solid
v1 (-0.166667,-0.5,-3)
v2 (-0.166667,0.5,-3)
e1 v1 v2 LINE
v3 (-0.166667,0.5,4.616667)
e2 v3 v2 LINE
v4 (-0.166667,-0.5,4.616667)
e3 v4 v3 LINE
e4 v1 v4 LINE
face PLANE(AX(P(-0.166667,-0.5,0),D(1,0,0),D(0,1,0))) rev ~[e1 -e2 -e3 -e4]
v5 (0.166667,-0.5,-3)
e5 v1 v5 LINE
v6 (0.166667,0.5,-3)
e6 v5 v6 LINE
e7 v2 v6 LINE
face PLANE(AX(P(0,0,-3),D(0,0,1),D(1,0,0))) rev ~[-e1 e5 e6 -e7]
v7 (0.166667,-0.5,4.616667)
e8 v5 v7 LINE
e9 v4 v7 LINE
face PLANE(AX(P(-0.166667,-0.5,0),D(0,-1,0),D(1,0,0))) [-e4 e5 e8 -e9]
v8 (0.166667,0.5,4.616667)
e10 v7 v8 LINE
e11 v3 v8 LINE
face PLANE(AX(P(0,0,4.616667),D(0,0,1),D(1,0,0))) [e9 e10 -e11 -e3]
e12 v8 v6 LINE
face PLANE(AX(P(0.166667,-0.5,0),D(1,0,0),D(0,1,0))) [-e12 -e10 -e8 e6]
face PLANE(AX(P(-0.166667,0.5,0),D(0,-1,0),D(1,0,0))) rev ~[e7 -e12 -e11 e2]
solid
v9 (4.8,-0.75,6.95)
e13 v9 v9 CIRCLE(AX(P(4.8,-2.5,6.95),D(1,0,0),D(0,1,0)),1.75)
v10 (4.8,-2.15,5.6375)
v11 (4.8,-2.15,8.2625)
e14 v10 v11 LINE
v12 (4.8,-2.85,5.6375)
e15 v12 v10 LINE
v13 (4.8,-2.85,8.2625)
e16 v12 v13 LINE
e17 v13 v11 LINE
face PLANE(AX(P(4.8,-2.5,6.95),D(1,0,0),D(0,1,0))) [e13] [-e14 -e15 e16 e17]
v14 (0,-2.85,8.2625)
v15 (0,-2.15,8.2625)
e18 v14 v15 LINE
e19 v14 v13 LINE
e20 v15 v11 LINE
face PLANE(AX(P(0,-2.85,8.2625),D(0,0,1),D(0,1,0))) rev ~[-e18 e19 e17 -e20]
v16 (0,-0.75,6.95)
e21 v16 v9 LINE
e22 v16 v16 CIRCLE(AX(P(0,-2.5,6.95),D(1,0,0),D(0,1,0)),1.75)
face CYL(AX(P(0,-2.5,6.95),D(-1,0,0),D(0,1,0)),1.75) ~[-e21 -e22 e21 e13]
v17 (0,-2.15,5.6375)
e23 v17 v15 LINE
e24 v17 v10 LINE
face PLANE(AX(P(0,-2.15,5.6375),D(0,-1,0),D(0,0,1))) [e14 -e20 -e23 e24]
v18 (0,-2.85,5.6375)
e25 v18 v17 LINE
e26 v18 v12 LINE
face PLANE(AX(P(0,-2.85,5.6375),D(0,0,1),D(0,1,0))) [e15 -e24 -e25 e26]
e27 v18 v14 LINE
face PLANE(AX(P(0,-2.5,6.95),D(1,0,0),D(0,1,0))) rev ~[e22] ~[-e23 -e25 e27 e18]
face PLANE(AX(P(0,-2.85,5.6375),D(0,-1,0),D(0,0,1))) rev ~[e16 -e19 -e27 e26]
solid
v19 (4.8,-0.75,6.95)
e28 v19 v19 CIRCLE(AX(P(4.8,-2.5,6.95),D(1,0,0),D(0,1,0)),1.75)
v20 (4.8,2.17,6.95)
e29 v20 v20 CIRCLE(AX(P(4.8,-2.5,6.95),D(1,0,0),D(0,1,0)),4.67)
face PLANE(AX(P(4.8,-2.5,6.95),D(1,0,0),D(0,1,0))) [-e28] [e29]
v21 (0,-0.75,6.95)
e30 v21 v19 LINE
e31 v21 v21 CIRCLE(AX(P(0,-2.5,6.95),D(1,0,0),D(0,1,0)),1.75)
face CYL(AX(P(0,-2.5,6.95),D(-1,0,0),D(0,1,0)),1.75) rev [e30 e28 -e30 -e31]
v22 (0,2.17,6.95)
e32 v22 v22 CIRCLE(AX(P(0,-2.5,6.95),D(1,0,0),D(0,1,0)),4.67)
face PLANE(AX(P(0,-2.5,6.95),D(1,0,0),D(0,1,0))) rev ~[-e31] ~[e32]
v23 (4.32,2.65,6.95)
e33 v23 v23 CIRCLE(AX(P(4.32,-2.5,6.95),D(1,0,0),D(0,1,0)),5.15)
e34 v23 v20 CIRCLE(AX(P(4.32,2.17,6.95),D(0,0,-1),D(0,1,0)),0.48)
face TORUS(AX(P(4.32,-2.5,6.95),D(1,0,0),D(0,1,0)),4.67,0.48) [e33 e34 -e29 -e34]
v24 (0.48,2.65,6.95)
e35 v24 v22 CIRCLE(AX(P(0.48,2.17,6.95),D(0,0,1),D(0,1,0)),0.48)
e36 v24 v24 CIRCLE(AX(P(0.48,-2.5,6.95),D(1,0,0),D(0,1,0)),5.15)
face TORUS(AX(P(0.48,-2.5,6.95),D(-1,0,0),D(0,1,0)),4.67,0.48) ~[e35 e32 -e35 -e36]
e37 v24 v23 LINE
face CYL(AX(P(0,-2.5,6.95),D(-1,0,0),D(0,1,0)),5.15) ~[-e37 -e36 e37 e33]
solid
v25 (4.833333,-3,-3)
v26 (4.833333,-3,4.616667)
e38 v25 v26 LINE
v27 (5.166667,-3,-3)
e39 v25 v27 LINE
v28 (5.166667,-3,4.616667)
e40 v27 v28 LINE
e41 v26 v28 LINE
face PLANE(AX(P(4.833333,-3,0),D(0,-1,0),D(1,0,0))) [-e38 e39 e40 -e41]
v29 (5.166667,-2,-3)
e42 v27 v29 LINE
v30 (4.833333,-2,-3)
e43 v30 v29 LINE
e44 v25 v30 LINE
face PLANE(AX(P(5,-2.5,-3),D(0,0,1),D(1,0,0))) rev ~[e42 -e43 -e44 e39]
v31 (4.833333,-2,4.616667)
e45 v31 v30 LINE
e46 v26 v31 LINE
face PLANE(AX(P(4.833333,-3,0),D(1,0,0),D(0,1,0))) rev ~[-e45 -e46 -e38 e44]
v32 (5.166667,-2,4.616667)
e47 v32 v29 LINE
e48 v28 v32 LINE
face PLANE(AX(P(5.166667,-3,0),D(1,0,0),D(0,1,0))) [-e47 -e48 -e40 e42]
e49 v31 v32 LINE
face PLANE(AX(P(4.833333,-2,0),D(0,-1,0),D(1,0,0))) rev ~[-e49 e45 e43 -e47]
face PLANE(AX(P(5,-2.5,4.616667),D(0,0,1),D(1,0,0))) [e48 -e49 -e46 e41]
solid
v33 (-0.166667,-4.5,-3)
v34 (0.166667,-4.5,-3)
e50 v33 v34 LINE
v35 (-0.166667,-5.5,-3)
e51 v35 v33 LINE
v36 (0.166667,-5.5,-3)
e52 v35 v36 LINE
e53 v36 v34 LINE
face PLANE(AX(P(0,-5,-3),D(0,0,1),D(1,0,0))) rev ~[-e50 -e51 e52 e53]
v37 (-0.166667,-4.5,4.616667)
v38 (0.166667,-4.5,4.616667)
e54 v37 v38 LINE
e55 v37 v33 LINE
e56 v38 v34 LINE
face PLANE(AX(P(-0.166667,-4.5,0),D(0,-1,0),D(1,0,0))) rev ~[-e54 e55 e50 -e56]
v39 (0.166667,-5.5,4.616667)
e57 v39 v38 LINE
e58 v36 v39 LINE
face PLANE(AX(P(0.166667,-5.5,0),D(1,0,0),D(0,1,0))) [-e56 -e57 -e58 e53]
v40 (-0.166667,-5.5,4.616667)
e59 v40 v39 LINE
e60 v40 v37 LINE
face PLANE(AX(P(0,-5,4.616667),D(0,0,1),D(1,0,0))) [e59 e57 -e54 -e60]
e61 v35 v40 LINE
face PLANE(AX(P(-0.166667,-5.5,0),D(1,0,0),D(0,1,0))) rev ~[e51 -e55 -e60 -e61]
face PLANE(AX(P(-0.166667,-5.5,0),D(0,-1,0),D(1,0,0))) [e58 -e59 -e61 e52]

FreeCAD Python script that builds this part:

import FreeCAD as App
import Part
import Sketcher
Q = App.Units.Quantity


def edges_at(feature, points):
    """Names of the edges that pass closest to the given points."""
    edges = feature.Shape.Edges
    near = lambda p: min(range(len(edges)), key=lambda i: edges[i].distToShape(Part.Vertex(*p))[0])
    return sorted({f"Edge{near(p) + 1}" for p in points})

doc = App.newDocument("Part")
body = doc.addObject("PartDesign::Body", "Body")

# Sketch on YZ plane
sketch1 = body.newObject("Sketcher::SketchObject", "Sketch")
sketch1.AttachmentSupport = (doc.getObject("YZ_Plane"), [""])
sketch1.MapMode = "FlatFace"
sketch1.addGeometry([
    Part.Circle(App.Vector(-2.5, 6.95, 0), App.Vector(0, 0, 1), 1.75),  # 0
    Part.LineSegment(App.Vector(-2.15, 5.6375, 0), App.Vector(-2.85, 5.6375, 0)),  # 1
    Part.LineSegment(App.Vector(-2.85, 5.6375, 0), App.Vector(-2.85, 8.2625, 0)),  # 2
    Part.LineSegment(App.Vector(-2.85, 8.2625, 0), App.Vector(-2.15, 8.2625, 0)),  # 3
    Part.LineSegment(App.Vector(-2.15, 8.2625, 0), App.Vector(-2.15, 5.6375, 0)),  # 4
], False)
sketch1.addConstraint([
    Sketcher.Constraint("Coincident", 1, 2, 2, 1),
    Sketcher.Constraint("Coincident", 2, 2, 3, 1),
    Sketcher.Constraint("Coincident", 3, 2, 4, 1),
    Sketcher.Constraint("Coincident", 4, 2, 1, 1),
    Sketcher.Constraint("Horizontal", 1),
    Sketcher.Constraint("Vertical", 2),
    Sketcher.Constraint("Horizontal", 3),
    Sketcher.Constraint("Vertical", 4),
    Sketcher.Constraint("Diameter", 0, Q("3.5 mm")),
    Sketcher.Constraint("DistanceX", 1, 2, 1, 1, Q("0.7 mm")),
    Sketcher.Constraint("DistanceX", 0, 3, -1, 1, Q("2.5 mm")),
    Sketcher.Constraint("DistanceY", 2, 1, 2, 2, Q("2.625 mm")),
    Sketcher.Constraint("DistanceY", -1, 1, 0, 3, Q("6.95 mm")),
    Sketcher.Constraint("DistanceX", 1, 2, -1, 1, Q("2.85 mm")),
    Sketcher.Constraint("DistanceY", -1, 1, 1, 2, Q("5.6375 mm")),
])
pad1 = body.newObject("PartDesign::Pad", "Pad")
pad1.Profile = sketch1
pad1.Length = 4.8
body2 = doc.addObject("PartDesign::Body", "Body001")

# Sketch on YZ plane
sketch2 = body2.newObject("Sketcher::SketchObject", "Sketch001")
sketch2.AttachmentSupport = (doc.getObject("YZ_Plane001"), [""])
sketch2.MapMode = "FlatFace"
sketch2.addGeometry([
    Part.Circle(App.Vector(-2.5, 6.95, 0), App.Vector(0, 0, 1), 5.15),
    Part.Circle(App.Vector(-2.5, 6.95, 0), App.Vector(0, 0, 1), 1.75),
], False)
sketch2.addConstraint([
    Sketcher.Constraint("Coincident", 1, 3, 0, 3),
    Sketcher.Constraint("Diameter", 0, Q("10.3 mm")),
    Sketcher.Constraint("Diameter", 1, Q("3.5 mm")),
    Sketcher.Constraint("DistanceX", 0, 3, -1, 1, Q("2.5 mm")),
    Sketcher.Constraint("DistanceY", -1, 1, 0, 3, Q("6.95 mm")),
])
pad2 = body2.newObject("PartDesign::Pad", "Pad001")
pad2.Profile = sketch2
pad2.Length = 4.8
doc.recompute()

fillet = body2.newObject("PartDesign::Fillet", "Fillet")
fillet.Base = (pad2, edges_at(pad2, [(0, -7.65, 6.95), (4.8, -7.65, 6.95)]))
fillet.Radius = 0.48
body3 = doc.addObject("PartDesign::Body", "Body002")
body3.AllowCompound = True

# Sketch on XY plane
sketch3 = body3.newObject("Sketcher::SketchObject", "Sketch002")
sketch3.AttachmentSupport = (doc.getObject("XY_Plane002"), [""])
sketch3.MapMode = "FlatFace"
sketch3.addGeometry([
    Part.LineSegment(App.Vector(-0.166667, 0.5, 0), App.Vector(-0.166667, -0.5, 0)),  # 0
    Part.LineSegment(App.Vector(-0.166667, -0.5, 0), App.Vector(0.166667, -0.5, 0)),  # 1
    Part.LineSegment(App.Vector(0.166667, -0.5, 0), App.Vector(0.166667, 0.5, 0)),  # 2
    Part.LineSegment(App.Vector(0.166667, 0.5, 0), App.Vector(-0.166667, 0.5, 0)),  # 3
    Part.LineSegment(App.Vector(4.833333, -2, 0), App.Vector(4.833333, -3, 0)),  # 4
    Part.LineSegment(App.Vector(4.833333, -3, 0), App.Vector(5.166667, -3, 0)),  # 5
    Part.LineSegment(App.Vector(5.166667, -3, 0), App.Vector(5.166667, -2, 0)),  # 6
    Part.LineSegment(App.Vector(5.166667, -2, 0), App.Vector(4.833333, -2, 0)),  # 7
    Part.LineSegment(App.Vector(-0.166667, -4.5, 0), App.Vector(-0.166667, -5.5, 0)),  # 8
    Part.LineSegment(App.Vector(-0.166667, -5.5, 0), App.Vector(0.166667, -5.5, 0)),  # 9
    Part.LineSegment(App.Vector(0.166667, -5.5, 0), App.Vector(0.166667, -4.5, 0)),  # 10
    Part.LineSegment(App.Vector(0.166667, -4.5, 0), App.Vector(-0.166667, -4.5, 0)),  # 11
], False)
sketch3.addConstraint([
    Sketcher.Constraint("Coincident", 0, 2, 1, 1),
    Sketcher.Constraint("Coincident", 1, 2, 2, 1),
    Sketcher.Constraint("Coincident", 2, 2, 3, 1),
    Sketcher.Constraint("Coincident", 3, 2, 0, 1),
    Sketcher.Constraint("Coincident", 4, 2, 5, 1),
    Sketcher.Constraint("Coincident", 5, 2, 6, 1),
    Sketcher.Constraint("Coincident", 6, 2, 7, 1),
    Sketcher.Constraint("Coincident", 7, 2, 4, 1),
    Sketcher.Constraint("Coincident", 8, 2, 9, 1),
    Sketcher.Constraint("Coincident", 9, 2, 10, 1),
    Sketcher.Constraint("Coincident", 10, 2, 11, 1),
    Sketcher.Constraint("Coincident", 11, 2, 8, 1),
    Sketcher.Constraint("Vertical", 0),
    Sketcher.Constraint("Horizontal", 1),
    Sketcher.Constraint("Vertical", 2),
    Sketcher.Constraint("Horizontal", 3),
    Sketcher.Constraint("Vertical", 4),
    Sketcher.Constraint("Horizontal", 5),
    Sketcher.Constraint("Vertical", 6),
    Sketcher.Constraint("Horizontal", 7),
    Sketcher.Constraint("Vertical", 8),
    Sketcher.Constraint("Horizontal", 9),
    Sketcher.Constraint("Vertical", 10),
    Sketcher.Constraint("Horizontal", 11),
    Sketcher.Constraint("Symmetric", 0, 2, 2, 2, -1, 1),
    Sketcher.Constraint("Vertical", 3, 2, 8, 2),
    Sketcher.Constraint("Vertical", 2, 2, 9, 2),
    Sketcher.Constraint("Equal", 3, 5),
    Sketcher.Constraint("Equal", 2, 4),
    Sketcher.Constraint("Equal", 6, 8),
    Sketcher.Constraint("DistanceY", 0, 2, 0, 1, Q("1 mm")),
    Sketcher.Constraint("DistanceY", 4, 2, -1, 1, Q("3 mm")),
    Sketcher.Constraint("DistanceX", 0, 2, 4, 2, Q("5 mm")),
    Sketcher.Constraint("DistanceY", 8, 2, 0, 2, Q("5 mm")),
    Sketcher.Constraint("DistanceX", 1, 1, 1, 2, Q("0.333334 mm")),
])
pad3 = body3.newObject("PartDesign::Pad", "Pad002")
pad3.Profile = sketch3
pad3.Type = "TwoLengths"
pad3.Length = 4.616667
pad3.Length2 = 3

doc.recompute()
